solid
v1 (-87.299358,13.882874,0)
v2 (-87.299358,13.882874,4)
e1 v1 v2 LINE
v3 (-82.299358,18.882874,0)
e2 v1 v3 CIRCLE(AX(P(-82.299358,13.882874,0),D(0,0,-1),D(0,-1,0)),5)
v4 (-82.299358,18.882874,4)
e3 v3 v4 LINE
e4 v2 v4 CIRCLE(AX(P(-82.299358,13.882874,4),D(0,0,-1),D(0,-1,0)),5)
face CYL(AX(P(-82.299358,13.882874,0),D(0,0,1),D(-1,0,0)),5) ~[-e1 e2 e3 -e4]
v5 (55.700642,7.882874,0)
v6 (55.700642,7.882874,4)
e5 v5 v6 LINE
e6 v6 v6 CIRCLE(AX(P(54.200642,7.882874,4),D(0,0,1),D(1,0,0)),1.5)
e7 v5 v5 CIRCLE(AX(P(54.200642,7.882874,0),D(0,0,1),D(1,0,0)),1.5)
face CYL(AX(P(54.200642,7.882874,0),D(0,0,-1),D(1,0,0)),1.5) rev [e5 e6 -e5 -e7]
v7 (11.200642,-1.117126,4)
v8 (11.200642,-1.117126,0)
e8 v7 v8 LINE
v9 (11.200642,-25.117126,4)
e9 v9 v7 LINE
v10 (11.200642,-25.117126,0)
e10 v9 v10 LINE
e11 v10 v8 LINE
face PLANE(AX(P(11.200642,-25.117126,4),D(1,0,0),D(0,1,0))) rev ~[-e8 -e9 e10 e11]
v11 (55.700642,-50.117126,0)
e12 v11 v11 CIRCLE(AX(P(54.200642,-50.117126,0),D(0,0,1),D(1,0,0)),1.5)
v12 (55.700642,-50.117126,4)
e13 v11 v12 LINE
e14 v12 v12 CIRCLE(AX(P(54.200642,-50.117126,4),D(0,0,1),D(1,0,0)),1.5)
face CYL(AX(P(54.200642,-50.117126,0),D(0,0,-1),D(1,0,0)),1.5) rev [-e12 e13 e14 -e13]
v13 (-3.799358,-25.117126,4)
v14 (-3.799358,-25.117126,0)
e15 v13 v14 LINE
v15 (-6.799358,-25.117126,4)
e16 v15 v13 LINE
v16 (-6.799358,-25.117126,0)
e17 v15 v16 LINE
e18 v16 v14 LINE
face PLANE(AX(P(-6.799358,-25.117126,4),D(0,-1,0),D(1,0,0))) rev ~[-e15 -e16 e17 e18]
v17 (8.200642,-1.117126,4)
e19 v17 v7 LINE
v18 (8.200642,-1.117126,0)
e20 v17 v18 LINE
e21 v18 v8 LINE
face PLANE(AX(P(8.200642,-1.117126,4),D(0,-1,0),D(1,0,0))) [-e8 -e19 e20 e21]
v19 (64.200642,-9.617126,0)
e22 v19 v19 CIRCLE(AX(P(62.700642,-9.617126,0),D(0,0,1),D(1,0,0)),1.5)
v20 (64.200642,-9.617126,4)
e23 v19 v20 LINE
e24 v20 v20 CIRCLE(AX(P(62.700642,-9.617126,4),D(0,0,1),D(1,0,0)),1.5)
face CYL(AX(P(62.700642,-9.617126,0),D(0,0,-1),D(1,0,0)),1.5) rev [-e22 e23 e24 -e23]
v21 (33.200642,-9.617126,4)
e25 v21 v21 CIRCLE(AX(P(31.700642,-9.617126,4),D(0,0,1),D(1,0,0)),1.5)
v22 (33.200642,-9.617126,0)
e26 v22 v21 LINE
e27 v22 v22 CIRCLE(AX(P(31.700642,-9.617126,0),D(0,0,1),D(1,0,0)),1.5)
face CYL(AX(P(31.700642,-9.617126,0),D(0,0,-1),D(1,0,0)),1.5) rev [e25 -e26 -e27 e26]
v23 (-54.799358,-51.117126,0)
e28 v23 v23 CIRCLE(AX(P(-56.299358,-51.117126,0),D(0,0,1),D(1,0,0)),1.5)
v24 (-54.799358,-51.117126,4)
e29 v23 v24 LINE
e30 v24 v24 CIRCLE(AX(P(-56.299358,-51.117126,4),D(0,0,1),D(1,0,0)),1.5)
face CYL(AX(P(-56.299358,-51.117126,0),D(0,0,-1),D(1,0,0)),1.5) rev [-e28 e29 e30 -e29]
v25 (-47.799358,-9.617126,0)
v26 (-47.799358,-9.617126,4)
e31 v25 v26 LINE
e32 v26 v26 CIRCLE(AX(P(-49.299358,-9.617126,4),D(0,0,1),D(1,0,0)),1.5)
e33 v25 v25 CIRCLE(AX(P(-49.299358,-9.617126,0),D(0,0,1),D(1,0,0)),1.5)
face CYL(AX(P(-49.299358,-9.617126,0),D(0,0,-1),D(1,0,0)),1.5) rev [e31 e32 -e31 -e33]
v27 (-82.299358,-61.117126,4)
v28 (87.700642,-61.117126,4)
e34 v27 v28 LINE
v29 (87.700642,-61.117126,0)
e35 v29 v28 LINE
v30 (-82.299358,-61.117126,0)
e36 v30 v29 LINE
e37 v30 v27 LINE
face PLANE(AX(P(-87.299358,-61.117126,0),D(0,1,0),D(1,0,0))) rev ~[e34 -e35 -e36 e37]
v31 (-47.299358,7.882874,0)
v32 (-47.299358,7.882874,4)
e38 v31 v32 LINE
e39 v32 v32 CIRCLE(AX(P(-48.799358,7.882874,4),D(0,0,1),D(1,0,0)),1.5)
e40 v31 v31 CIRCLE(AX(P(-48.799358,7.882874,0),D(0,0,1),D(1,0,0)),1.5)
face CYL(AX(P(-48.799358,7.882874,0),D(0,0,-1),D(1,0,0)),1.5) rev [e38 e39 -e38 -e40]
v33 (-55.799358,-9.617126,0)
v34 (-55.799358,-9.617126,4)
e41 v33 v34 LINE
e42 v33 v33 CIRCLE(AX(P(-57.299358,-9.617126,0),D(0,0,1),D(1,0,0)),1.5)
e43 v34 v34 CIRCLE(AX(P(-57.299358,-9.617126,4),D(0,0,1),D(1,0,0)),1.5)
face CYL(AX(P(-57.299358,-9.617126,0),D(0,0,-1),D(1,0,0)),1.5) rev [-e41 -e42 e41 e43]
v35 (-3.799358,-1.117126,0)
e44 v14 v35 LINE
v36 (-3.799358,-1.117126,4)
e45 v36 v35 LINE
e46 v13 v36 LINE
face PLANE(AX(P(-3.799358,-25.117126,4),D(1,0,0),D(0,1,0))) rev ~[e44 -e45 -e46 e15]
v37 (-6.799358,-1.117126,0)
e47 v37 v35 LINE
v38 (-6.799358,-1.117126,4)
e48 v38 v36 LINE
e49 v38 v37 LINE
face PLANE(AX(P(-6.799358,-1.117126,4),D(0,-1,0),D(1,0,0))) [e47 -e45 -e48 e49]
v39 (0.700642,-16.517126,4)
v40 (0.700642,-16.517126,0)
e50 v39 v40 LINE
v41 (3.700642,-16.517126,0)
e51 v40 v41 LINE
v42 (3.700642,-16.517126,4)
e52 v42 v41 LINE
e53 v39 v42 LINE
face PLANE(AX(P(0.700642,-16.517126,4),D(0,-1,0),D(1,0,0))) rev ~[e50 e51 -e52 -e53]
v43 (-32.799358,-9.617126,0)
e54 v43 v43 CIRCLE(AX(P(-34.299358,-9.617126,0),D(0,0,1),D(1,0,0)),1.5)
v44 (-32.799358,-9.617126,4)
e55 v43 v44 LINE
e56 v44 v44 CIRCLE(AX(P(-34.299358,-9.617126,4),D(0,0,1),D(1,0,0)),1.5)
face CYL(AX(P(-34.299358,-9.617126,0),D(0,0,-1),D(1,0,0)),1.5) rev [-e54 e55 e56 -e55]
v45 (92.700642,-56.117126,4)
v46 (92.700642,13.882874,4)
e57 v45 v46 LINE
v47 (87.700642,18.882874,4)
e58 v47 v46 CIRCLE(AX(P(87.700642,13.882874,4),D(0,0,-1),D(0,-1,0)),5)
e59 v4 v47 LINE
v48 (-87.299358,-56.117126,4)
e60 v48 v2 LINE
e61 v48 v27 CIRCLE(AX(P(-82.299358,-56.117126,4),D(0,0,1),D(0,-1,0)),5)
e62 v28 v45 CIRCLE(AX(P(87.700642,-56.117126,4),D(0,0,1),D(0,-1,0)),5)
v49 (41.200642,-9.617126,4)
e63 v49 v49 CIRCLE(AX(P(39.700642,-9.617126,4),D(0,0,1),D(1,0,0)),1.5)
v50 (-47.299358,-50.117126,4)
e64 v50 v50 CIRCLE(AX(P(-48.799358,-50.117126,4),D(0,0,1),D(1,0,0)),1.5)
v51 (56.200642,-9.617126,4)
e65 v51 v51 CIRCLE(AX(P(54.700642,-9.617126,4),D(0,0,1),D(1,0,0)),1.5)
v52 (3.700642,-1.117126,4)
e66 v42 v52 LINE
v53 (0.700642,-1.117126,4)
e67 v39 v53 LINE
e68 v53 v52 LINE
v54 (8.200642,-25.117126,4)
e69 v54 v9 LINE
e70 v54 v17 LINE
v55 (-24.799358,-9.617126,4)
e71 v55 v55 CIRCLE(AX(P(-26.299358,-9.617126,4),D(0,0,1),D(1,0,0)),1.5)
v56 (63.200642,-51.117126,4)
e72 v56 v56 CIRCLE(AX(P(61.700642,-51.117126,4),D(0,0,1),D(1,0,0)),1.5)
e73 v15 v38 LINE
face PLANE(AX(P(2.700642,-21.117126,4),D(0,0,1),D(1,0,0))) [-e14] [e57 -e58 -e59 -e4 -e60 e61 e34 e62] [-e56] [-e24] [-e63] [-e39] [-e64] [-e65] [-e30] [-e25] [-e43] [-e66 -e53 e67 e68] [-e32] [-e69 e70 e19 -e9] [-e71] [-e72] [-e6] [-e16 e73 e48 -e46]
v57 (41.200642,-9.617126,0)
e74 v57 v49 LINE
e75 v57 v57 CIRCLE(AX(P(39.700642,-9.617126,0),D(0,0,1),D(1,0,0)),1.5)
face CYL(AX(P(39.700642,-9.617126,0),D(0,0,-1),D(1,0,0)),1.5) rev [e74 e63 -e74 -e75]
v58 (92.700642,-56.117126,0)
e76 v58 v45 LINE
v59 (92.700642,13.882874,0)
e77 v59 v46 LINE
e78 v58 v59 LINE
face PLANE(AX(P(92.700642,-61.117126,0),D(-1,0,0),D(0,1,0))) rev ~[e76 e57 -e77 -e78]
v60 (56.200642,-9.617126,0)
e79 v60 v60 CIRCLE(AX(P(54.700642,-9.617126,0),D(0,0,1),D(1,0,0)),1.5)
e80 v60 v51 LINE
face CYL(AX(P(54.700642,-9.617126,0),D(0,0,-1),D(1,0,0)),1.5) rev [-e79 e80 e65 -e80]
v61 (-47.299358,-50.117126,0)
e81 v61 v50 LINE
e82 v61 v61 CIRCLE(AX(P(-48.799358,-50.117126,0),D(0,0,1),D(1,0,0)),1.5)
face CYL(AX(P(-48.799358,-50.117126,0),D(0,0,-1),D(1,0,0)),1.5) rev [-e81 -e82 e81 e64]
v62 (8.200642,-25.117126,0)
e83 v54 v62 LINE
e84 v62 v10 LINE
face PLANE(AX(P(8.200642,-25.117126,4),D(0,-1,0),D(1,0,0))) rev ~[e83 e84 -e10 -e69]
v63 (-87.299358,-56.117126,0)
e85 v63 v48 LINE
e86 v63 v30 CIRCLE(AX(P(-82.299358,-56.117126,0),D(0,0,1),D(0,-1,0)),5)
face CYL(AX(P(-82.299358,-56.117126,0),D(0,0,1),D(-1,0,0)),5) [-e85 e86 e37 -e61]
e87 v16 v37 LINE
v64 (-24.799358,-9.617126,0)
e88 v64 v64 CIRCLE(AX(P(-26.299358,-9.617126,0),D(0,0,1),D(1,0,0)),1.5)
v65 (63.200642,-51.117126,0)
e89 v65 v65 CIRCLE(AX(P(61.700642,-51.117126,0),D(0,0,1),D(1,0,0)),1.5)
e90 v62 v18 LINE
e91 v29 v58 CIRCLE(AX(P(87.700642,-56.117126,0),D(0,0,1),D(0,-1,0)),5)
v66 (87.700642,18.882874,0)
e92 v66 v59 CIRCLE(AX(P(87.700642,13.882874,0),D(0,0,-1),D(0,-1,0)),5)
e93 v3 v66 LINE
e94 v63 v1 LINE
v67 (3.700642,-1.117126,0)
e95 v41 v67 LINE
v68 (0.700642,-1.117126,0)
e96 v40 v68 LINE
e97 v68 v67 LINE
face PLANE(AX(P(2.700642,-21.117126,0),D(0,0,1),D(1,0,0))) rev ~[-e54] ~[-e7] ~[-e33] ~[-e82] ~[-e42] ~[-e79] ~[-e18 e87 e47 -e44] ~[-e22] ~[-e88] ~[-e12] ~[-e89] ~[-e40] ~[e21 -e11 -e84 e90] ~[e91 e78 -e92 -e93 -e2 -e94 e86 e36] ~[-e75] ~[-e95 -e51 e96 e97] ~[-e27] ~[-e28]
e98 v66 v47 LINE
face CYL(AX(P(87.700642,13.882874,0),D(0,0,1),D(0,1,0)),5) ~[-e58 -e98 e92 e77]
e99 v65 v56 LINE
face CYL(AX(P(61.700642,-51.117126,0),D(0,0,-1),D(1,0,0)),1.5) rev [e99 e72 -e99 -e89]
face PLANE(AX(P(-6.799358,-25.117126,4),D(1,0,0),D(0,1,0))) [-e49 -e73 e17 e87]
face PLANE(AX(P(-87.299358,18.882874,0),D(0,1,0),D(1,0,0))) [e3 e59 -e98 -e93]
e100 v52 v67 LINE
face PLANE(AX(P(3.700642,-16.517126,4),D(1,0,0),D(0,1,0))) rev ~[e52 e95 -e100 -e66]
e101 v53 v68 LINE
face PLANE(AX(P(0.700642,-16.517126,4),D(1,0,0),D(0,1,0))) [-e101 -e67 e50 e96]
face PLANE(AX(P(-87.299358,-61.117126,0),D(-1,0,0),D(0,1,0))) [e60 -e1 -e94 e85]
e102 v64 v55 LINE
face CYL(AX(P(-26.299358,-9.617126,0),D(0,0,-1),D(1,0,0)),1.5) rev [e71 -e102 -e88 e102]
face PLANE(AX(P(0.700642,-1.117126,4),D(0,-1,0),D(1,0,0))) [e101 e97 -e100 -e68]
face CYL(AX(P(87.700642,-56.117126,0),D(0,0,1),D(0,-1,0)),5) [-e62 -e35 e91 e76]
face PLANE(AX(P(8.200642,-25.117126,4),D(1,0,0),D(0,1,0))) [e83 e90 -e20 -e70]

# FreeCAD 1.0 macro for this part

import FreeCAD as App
import Part
import Sketcher
Q = App.Units.Quantity


def edges_at(feature, points):
    """Names of the edges that pass closest to the given points."""
    edges = feature.Shape.Edges
    near = lambda p: min(range(len(edges)), key=lambda i: edges[i].distToShape(Part.Vertex(*p))[0])
    return sorted({f"Edge{near(p) + 1}" for p in points})

doc = App.newDocument("Part")
body = doc.addObject("PartDesign::Body", "Body")

sketch1 = doc.addObject("Sketcher::SketchObject", "Sketch")
body.addObject(sketch1)
sketch1.AttachmentSupport = (doc.XY_Plane, [""])
sketch1.MapMode = "FlatFace"
sketch1.addGeometry([
    Part.LineSegment(App.Vector(-87.3, 18.9, 0), App.Vector(-87.3, -61.1, 0)),
    Part.LineSegment(App.Vector(-87.3, -61.1, 0), App.Vector(92.7, -61.1, 0)),
    Part.LineSegment(App.Vector(92.7, -61.1, 0), App.Vector(92.7, 18.9, 0)),
    Part.LineSegment(App.Vector(92.7, 18.9, 0), App.Vector(-87.3, 18.9, 0)),
    Part.Circle(App.Vector(-56.3, -51.1, 0), App.Vector(0, 0, 1), 1.5),
    Part.Circle(App.Vector(-48.8, -50.1, 0), App.Vector(0, 0, 1), 1.5),
    Part.Circle(App.Vector(54.2, -50.1, 0), App.Vector(0, 0, 1), 1.5),
    Part.Circle(App.Vector(61.7, -51.1, 0), App.Vector(0, 0, 1), 1.5),
    Part.Circle(App.Vector(-57.3, -9.6, 0), App.Vector(0, 0, 1), 1.5),
    Part.Circle(App.Vector(-49.3, -9.6, 0), App.Vector(0, 0, 1), 1.5),
    Part.Circle(App.Vector(-34.3, -9.6, 0), App.Vector(0, 0, 1), 1.5),
    Part.Circle(App.Vector(-26.3, -9.6, 0), App.Vector(0, 0, 1), 1.5),
    Part.Circle(App.Vector(-48.8, 7.9, 0), App.Vector(0, 0, 1), 1.5),
    Part.Circle(App.Vector(31.7, -9.6, 0), App.Vector(0, 0, 1), 1.5),
    Part.Circle(App.Vector(39.7, -9.6, 0), App.Vector(0, 0, 1), 1.5),
    Part.Circle(App.Vector(54.7, -9.6, 0), App.Vector(0, 0, 1), 1.5),
    Part.Circle(App.Vector(62.7, -9.6, 0), App.Vector(0, 0, 1), 1.5),
    Part.Circle(App.Vector(54.2, 7.9, 0), App.Vector(0, 0, 1), 1.5),
], False)
sketch1.addConstraint([
    Sketcher.Constraint("Coincident", 0, 2, 1, 1),
    Sketcher.Constraint("Coincident", 1, 2, 2, 1),
    Sketcher.Constraint("Coincident", 2, 2, 3, 1),
    Sketcher.Constraint("Coincident", 3, 2, 0, 1),
    Sketcher.Constraint("Vertical", 0),
    Sketcher.Constraint("Horizontal", 1),
    Sketcher.Constraint("Vertical", 2),
    Sketcher.Constraint("Horizontal", 3),
    Sketcher.Constraint("Equal", 4, 5),
    Sketcher.Constraint("Equal", 5, 6),
    Sketcher.Constraint("Equal", 6, 7),
    Sketcher.Constraint("Equal", 7, 8),
    Sketcher.Constraint("Equal", 8, 9),
    Sketcher.Constraint("Equal", 9, 10),
    Sketcher.Constraint("Equal", 10, 11),
    Sketcher.Constraint("Equal", 11, 12),
    Sketcher.Constraint("Equal", 12, 13),
    Sketcher.Constraint("Equal", 13, 14),
    Sketcher.Constraint("Equal", 14, 15),
    Sketcher.Constraint("Equal", 15, 16),
    Sketcher.Constraint("Equal", 16, 17),
    Sketcher.Constraint("Horizontal", 5, 3, 6, 3),
    Sketcher.Constraint("Horizontal", 4, 3, 7, 3),
    Sketcher.Constraint("Horizontal", 8, 3, 9, 3),
    Sketcher.Constraint("Horizontal", 9, 3, 10, 3),
    Sketcher.Constraint("Horizontal", 10, 3, 11, 3),
    Sketcher.Constraint("Horizontal", 11, 3, 13, 3),
    Sketcher.Constraint("Horizontal", 13, 3, 14, 3),
    Sketcher.Constraint("Horizontal", 14, 3, 15, 3),
    Sketcher.Constraint("Horizontal", 15, 3, 16, 3),
    Sketcher.Constraint("Horizontal", 12, 3, 17, 3),
    Sketcher.Constraint("Vertical", 5, 3, 12, 3),
    Sketcher.Constraint("Vertical", 6, 3, 17, 3),
    Sketcher.Constraint("Diameter", 4, Q("3 mm")),
    Sketcher.Constraint("DistanceX", 1, 1, 1, 2, Q("180 mm")),
    Sketcher.Constraint("DistanceY", 0, 2, 0, 1, Q("80 mm")),
    Sketcher.Constraint("DistanceY", 4, 3, 5, 3, Q("1 mm")),
    Sketcher.Constraint("DistanceX", 5, 3, 6, 3, Q("103 mm")),
    Sketcher.Constraint("DistanceX", 4, 3, 7, 3, Q("118 mm")),
    Sketcher.Constraint("DistanceX", 8, 3, 4, 3, Q("1 mm")),
    Sketcher.Constraint("DistanceX", 8, 3, 9, 3, Q("8 mm")),
    Sketcher.Constraint("DistanceX", 9, 3, 10, 3, Q("15 mm")),
    Sketcher.Constraint("DistanceX", 10, 3, 11, 3, Q("8 mm")),
    Sketcher.Constraint("DistanceY", 5, 3, 12, 3, Q("58 mm")),
    Sketcher.Constraint("DistanceX", 13, 3, 7, 3, Q("30 mm")),
    Sketcher.Constraint("DistanceX", 13, 3, 14, 3, Q("8 mm")),
    Sketcher.Constraint("DistanceX", 14, 3, 15, 3, Q("15 mm")),
    Sketcher.Constraint("DistanceX", 15, 3, 16, 3, Q("8 mm")),
    Sketcher.Constraint("DistanceX", 0, 2, 4, 3, Q("31 mm")),
    Sketcher.Constraint("DistanceY", 0, 2, 4, 3, Q("10 mm")),
    Sketcher.Constraint("DistanceX", 4, 3, 5, 3, Q("7.5 mm")),
    Sketcher.Constraint("DistanceY", 5, 3, 8, 3, Q("40.5 mm")),
    Sketcher.Constraint("DistanceX", 4, 3, -1, 1, Q("56.299358 mm")),
    Sketcher.Constraint("DistanceY", 4, 3, -1, 1, Q("51.117126 mm")),
])
pad1 = doc.addObject("PartDesign::Pad", "Pad")
body.addObject(pad1)
pad1.Profile = sketch1
pad1.Length = 4

sketch2 = doc.addObject("Sketcher::SketchObject", "Sketch001")
body.addObject(sketch2)
sketch2.AttachmentSupport = (doc.XY_Plane, [""])
sketch2.MapMode = "FlatFace"
sketch2.AttachmentOffset = App.Placement(App.Vector(0, 0, 4), App.Rotation())
sketch2.addGeometry([
    Part.LineSegment(App.Vector(-6.8, -1.1, 0), App.Vector(-6.8, -25.1, 0)),
    Part.LineSegment(App.Vector(-6.8, -25.1, 0), App.Vector(-3.8, -25.1, 0)),
    Part.LineSegment(App.Vector(-3.8, -25.1, 0), App.Vector(-3.8, -1.1, 0)),
    Part.LineSegment(App.Vector(-3.8, -1.1, 0), App.Vector(-6.8, -1.1, 0)),
    Part.LineSegment(App.Vector(0.7, -1.1, 0), App.Vector(0.7, -16.5, 0)),
    Part.LineSegment(App.Vector(0.7, -16.5, 0), App.Vector(3.7, -16.5, 0)),
    Part.LineSegment(App.Vector(3.7, -16.5, 0), App.Vector(3.7, -1.1, 0)),
    Part.LineSegment(App.Vector(3.7, -1.1, 0), App.Vector(0.7, -1.1, 0)),
    Part.LineSegment(App.Vector(8.2, -1.1, 0), App.Vector(8.2, -25.1, 0)),
    Part.LineSegment(App.Vector(8.2, -25.1, 0), App.Vector(11.2, -25.1, 0)),
    Part.LineSegment(App.Vector(11.2, -25.1, 0), App.Vector(11.2, -1.1, 0)),
    Part.LineSegment(App.Vector(11.2, -1.1, 0), App.Vector(8.2, -1.1, 0)),
], False)
sketch2.addConstraint([
    Sketcher.Constraint("Coincident", 0, 2, 1, 1),
    Sketcher.Constraint("Coincident", 1, 2, 2, 1),
    Sketcher.Constraint("Coincident", 2, 2, 3, 1),
    Sketcher.Constraint("Coincident", 3, 2, 0, 1),
    Sketcher.Constraint("Coincident", 4, 2, 5, 1),
    Sketcher.Constraint("Coincident", 5, 2, 6, 1),
    Sketcher.Constraint("Coincident", 6, 2, 7, 1),
    Sketcher.Constraint("Coincident", 7, 2, 4, 1),
    Sketcher.Constraint("Coincident", 8, 2, 9, 1),
    Sketcher.Constraint("Coincident", 9, 2, 10, 1),
    Sketcher.Constraint("Coincident", 10, 2, 11, 1),
    Sketcher.Constraint("Coincident", 11, 2, 8, 1),
    Sketcher.Constraint("Vertical", 0),
    Sketcher.Constraint("Horizontal", 1),
    Sketcher.Constraint("Vertical", 2),
    Sketcher.Constraint("Horizontal", 3),
    Sketcher.Constraint("Vertical", 4),
    Sketcher.Constraint("Horizontal", 5),
    Sketcher.Constraint("Vertical", 6),
    Sketcher.Constraint("Horizontal", 7),
    Sketcher.Constraint("Vertical", 8),
    Sketcher.Constraint("Horizontal", 9),
    Sketcher.Constraint("Vertical", 10),
    Sketcher.Constraint("Horizontal", 11),
    Sketcher.Constraint("Horizontal", 3, 2, 6, 2),
    Sketcher.Constraint("Horizontal", 1, 2, 8, 2),
    Sketcher.Constraint("Horizontal", 7, 2, 10, 2),
    Sketcher.Constraint("Equal", 3, 5),
    Sketcher.Constraint("Equal", 7, 9),
    Sketcher.Constraint("DistanceX", 1, 1, 1, 2, Q("3 mm")),
    Sketcher.Constraint("DistanceY", 0, 2, 0, 1, Q("24 mm")),
    Sketcher.Constraint("DistanceY", 4, 2, 4, 1, Q("15.4 mm")),
    Sketcher.Constraint("DistanceX", 1, 2, 8, 2, Q("12 mm")),
    Sketcher.Constraint("DistanceX", 1, 2, 4, 2, Q("4.5 mm")),
    Sketcher.Constraint("DistanceX", 0, 2, -1, 1, Q("6.799358 mm")),
    Sketcher.Constraint("DistanceY", 0, 2, -1, 1, Q("25.117126 mm")),
])
pocket1 = doc.addObject("PartDesign::Pocket", "Pocket")
body.addObject(pocket1)
pocket1.Profile = sketch2
pocket1.Length = 4
doc.recompute()

fillet = doc.addObject("PartDesign::Fillet", "Fillet")
body.addObject(fillet)
fillet.Base = (pocket1, edges_at(pocket1, [
    (-87.299, 18.883, 2),
    (92.701, 18.883, 2),
    (92.701, -61.117, 2),
    (-87.299, -61.117, 2),
]))
fillet.Radius = 5

doc.recompute()
